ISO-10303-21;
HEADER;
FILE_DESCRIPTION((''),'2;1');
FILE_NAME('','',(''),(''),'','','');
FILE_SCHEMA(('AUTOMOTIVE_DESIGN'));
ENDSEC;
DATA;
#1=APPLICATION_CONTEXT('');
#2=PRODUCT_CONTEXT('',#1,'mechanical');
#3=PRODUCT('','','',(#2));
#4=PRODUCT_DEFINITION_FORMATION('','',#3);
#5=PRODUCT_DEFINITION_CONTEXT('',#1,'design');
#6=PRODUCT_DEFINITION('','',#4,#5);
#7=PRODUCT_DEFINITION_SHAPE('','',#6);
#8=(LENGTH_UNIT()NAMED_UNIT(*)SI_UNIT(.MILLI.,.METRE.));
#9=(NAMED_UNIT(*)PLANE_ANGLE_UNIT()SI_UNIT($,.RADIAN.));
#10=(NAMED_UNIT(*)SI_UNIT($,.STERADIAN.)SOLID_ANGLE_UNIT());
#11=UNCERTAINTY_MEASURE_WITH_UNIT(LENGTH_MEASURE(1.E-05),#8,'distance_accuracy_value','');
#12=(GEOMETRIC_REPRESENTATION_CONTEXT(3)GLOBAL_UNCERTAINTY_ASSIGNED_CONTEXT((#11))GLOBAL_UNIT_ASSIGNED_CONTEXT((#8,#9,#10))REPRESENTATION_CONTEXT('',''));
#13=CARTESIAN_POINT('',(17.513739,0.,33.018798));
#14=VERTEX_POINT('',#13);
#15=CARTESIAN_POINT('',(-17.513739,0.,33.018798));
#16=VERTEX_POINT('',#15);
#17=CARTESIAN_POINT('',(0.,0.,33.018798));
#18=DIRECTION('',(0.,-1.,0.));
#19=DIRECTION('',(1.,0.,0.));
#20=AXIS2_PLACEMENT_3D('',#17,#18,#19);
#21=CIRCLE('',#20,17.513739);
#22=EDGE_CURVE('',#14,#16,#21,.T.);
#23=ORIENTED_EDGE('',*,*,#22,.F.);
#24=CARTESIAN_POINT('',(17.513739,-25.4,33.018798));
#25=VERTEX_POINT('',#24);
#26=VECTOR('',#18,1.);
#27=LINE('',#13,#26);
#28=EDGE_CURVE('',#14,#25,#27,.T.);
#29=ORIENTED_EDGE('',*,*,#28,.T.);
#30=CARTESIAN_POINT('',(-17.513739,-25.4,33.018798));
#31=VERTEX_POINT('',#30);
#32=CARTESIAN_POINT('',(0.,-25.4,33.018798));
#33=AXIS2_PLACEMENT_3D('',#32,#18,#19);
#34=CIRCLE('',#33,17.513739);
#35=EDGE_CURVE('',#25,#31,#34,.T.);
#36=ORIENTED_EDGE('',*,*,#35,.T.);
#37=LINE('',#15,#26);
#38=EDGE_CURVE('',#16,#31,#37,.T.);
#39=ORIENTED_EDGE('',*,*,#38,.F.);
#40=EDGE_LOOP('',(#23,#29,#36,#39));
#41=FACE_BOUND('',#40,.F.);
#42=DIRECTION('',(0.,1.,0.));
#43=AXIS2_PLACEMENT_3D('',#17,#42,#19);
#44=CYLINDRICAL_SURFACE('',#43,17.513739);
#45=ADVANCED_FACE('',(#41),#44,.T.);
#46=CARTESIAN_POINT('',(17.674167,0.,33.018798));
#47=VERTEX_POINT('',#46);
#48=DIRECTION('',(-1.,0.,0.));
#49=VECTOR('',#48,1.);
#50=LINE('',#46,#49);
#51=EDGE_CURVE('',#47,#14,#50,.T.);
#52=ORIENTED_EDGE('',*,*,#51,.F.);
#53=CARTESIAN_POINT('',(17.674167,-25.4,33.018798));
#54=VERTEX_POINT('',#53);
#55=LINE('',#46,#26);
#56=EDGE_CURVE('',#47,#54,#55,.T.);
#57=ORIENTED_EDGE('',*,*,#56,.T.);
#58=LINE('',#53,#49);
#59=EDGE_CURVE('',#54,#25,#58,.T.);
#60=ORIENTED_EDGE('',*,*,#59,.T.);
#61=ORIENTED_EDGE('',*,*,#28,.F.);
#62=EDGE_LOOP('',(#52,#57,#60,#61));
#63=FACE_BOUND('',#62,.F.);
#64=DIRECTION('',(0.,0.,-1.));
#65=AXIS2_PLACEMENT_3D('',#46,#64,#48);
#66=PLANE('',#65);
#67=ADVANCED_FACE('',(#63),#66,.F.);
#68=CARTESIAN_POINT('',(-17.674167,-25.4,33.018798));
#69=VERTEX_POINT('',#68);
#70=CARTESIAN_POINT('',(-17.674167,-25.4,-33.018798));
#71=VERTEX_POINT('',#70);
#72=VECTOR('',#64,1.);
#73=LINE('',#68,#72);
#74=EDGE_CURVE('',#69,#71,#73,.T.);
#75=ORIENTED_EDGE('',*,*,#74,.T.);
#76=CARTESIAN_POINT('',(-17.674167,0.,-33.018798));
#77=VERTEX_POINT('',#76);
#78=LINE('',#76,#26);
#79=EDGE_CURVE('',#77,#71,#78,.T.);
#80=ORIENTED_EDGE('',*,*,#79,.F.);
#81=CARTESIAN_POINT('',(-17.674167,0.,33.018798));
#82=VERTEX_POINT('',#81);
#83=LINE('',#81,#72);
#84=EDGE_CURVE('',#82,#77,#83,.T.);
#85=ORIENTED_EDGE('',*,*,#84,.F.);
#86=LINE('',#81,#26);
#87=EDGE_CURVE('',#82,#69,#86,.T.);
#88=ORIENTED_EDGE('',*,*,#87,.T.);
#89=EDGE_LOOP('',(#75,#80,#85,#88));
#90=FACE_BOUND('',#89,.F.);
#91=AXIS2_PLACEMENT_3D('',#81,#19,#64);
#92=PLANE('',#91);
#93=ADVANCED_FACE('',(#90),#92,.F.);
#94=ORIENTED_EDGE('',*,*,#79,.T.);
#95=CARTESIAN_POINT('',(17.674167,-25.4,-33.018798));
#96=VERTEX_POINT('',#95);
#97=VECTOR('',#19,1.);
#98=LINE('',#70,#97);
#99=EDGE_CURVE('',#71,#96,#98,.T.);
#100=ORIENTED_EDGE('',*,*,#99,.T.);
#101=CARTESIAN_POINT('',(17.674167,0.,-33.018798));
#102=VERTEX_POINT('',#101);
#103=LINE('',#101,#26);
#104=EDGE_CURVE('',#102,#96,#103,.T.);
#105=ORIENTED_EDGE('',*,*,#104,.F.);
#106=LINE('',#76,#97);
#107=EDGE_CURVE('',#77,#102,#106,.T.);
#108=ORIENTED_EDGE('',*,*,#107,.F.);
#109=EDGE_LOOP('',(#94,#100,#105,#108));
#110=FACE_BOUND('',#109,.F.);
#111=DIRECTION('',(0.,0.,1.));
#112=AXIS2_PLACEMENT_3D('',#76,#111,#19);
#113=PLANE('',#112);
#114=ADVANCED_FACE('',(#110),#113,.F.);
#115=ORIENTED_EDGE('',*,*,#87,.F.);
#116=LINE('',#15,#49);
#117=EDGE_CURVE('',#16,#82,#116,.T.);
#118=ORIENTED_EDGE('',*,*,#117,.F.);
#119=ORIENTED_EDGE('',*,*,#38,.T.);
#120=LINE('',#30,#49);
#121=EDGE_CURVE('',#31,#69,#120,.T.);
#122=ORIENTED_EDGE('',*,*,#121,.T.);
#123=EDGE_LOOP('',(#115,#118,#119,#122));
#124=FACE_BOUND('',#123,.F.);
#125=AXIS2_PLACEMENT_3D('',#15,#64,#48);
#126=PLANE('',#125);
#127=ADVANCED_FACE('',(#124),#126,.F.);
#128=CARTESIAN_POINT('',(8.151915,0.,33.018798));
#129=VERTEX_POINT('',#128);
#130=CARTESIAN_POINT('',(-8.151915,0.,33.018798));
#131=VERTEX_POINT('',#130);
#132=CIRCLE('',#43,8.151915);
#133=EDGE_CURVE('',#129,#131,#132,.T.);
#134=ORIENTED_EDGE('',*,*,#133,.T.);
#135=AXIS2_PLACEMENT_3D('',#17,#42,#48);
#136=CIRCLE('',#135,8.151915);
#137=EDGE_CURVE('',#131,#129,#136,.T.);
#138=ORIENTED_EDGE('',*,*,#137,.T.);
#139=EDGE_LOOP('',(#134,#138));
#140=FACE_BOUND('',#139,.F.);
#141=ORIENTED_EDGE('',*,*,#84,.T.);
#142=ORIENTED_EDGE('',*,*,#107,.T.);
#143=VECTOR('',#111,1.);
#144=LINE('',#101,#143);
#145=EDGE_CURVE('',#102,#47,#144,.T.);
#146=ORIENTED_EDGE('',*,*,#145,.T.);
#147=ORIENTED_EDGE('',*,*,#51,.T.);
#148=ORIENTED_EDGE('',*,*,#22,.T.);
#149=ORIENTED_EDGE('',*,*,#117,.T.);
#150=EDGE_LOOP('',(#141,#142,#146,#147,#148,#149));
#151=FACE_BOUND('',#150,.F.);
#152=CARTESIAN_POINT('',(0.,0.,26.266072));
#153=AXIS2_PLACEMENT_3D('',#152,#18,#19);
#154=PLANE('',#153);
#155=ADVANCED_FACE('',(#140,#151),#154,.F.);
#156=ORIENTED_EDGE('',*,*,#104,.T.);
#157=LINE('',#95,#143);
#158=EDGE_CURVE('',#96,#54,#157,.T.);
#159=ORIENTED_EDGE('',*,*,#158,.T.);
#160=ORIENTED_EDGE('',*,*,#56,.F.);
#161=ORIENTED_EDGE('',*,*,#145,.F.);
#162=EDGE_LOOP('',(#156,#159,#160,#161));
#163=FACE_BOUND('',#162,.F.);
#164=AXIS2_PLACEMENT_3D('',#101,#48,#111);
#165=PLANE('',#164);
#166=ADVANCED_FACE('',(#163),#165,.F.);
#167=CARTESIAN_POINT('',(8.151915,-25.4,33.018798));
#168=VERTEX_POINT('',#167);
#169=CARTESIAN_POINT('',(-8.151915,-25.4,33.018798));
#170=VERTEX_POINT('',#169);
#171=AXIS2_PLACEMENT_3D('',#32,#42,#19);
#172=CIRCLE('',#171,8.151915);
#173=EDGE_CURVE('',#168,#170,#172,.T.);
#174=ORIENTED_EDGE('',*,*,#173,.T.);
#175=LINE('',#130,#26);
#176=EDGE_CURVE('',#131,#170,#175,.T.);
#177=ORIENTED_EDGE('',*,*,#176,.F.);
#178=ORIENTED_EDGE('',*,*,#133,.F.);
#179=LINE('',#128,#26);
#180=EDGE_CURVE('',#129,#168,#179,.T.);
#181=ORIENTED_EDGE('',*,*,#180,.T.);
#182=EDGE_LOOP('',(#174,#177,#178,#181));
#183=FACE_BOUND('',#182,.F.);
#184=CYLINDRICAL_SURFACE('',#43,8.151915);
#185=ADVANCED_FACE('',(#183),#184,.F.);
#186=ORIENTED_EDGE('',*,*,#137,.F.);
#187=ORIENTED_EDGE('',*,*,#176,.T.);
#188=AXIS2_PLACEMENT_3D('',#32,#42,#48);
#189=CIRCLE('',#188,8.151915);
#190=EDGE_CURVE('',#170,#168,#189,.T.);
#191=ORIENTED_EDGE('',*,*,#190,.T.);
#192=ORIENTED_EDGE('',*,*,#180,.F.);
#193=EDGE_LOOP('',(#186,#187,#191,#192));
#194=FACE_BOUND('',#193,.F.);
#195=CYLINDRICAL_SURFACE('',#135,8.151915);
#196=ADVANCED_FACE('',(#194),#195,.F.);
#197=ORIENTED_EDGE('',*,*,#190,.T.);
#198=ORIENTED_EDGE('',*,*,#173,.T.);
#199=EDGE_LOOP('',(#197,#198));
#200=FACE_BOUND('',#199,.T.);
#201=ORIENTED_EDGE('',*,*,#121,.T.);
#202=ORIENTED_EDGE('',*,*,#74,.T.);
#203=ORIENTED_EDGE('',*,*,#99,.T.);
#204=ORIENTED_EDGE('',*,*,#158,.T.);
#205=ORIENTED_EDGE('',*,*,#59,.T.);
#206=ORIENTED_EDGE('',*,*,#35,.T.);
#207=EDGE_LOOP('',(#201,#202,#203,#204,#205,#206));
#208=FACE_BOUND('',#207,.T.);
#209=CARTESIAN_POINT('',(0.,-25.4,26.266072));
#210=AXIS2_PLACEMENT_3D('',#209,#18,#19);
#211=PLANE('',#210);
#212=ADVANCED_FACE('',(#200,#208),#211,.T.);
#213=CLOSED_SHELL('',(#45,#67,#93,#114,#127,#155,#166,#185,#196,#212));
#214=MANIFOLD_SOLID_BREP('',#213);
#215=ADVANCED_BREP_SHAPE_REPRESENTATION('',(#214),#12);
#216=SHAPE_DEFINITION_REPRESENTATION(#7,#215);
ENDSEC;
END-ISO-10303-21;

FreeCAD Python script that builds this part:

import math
import FreeCAD as App
import Part
import Sketcher
from FreeCAD import Vector
Q = App.Units.Quantity

doc = App.newDocument("Part")
body = doc.addObject("PartDesign::Body", "Body")

# Sketch on XZ plane
sketch1 = body.newObject("Sketcher::SketchObject", "Sketch")
sketch1.AttachmentSupport = (doc.getObject("XZ_Plane"), [""])
sketch1.MapMode = "FlatFace"
sketch1.addGeometry(Part.ArcOfCircle(Part.Circle(Vector(0, 33.02, 0), Vector(0, 0, 1), 17.51), math.radians(0), math.radians(180)), False)
sketch1.addGeometry(Part.LineSegment(Vector(-17.51, 33.02, 0), Vector(-17.67, 33.02, 0)), False)
sketch1.addGeometry(Part.LineSegment(Vector(-17.67, 33.02, 0), Vector(-17.67, -33.02, 0)), False)
sketch1.addGeometry(Part.LineSegment(Vector(-17.67, -33.02, 0), Vector(17.67, -33.02, 0)), False)
sketch1.addGeometry(Part.LineSegment(Vector(17.67, -33.02, 0), Vector(17.67, 33.02, 0)), False)
sketch1.addGeometry(Part.LineSegment(Vector(17.67, 33.02, 0), Vector(17.51, 33.02, 0)), False)
sketch1.addGeometry(Part.ArcOfCircle(Part.Circle(Vector(0, 33.02, 0), Vector(0, 0, 1), 8.15), math.radians(180), math.radians(360)), False)
sketch1.addGeometry(Part.ArcOfCircle(Part.Circle(Vector(0, 33.02, 0), Vector(0, 0, 1), 8.15), math.radians(0), math.radians(180)), False)
sketch1.addConstraint(Sketcher.Constraint("Coincident", 0, 2, 1, 1))
sketch1.addConstraint(Sketcher.Constraint("Coincident", 1, 2, 2, 1))
sketch1.addConstraint(Sketcher.Constraint("Coincident", 2, 2, 3, 1))
sketch1.addConstraint(Sketcher.Constraint("Coincident", 3, 2, 4, 1))
sketch1.addConstraint(Sketcher.Constraint("Coincident", 4, 2, 5, 1))
sketch1.addConstraint(Sketcher.Constraint("Coincident", 5, 2, 0, 1))
sketch1.addConstraint(Sketcher.Constraint("Tangent", 6, 1, 7, 2))
sketch1.addConstraint(Sketcher.Constraint("Coincident", 7, 1, 6, 2))
sketch1.addConstraint(Sketcher.Constraint("Horizontal", 1))
sketch1.addConstraint(Sketcher.Constraint("Vertical", 2))
sketch1.addConstraint(Sketcher.Constraint("Horizontal", 3))
sketch1.addConstraint(Sketcher.Constraint("Vertical", 4))
sketch1.addConstraint(Sketcher.Constraint("Horizontal", 5))
sketch1.addConstraint(Sketcher.Constraint("Coincident", 6, 3, 0, 3))
sketch1.addConstraint(Sketcher.Constraint("Symmetric", 1, 2, 3, 2, -1, 1))
sketch1.addConstraint(Sketcher.Constraint("Symmetric", 0, 2, 5, 2, -2))
sketch1.addConstraint(Sketcher.Constraint("Horizontal", 7, 3, 0, 2))
sketch1.addConstraint(Sketcher.Constraint("Horizontal", 5, 2, 6, 1))
sketch1.addConstraint(Sketcher.Constraint("Horizontal", 6, 1, 7, 1))
sketch1.addConstraint(Sketcher.Constraint("Radius", 0, Q("17.513739 mm")))
sketch1.addConstraint(Sketcher.Constraint("Radius", 6, Q("8.151915 mm")))
sketch1.addConstraint(Sketcher.Constraint("DistanceX", 1, 2, 1, 1, Q("0.160428 mm")))
sketch1.addConstraint(Sketcher.Constraint("DistanceY", 2, 2, 2, 1, Q("66.037595 mm")))
pad1 = body.newObject("PartDesign::Pad", "Pad")
pad1.Profile = sketch1
pad1.Length = Q("1 in")

doc.recompute()
